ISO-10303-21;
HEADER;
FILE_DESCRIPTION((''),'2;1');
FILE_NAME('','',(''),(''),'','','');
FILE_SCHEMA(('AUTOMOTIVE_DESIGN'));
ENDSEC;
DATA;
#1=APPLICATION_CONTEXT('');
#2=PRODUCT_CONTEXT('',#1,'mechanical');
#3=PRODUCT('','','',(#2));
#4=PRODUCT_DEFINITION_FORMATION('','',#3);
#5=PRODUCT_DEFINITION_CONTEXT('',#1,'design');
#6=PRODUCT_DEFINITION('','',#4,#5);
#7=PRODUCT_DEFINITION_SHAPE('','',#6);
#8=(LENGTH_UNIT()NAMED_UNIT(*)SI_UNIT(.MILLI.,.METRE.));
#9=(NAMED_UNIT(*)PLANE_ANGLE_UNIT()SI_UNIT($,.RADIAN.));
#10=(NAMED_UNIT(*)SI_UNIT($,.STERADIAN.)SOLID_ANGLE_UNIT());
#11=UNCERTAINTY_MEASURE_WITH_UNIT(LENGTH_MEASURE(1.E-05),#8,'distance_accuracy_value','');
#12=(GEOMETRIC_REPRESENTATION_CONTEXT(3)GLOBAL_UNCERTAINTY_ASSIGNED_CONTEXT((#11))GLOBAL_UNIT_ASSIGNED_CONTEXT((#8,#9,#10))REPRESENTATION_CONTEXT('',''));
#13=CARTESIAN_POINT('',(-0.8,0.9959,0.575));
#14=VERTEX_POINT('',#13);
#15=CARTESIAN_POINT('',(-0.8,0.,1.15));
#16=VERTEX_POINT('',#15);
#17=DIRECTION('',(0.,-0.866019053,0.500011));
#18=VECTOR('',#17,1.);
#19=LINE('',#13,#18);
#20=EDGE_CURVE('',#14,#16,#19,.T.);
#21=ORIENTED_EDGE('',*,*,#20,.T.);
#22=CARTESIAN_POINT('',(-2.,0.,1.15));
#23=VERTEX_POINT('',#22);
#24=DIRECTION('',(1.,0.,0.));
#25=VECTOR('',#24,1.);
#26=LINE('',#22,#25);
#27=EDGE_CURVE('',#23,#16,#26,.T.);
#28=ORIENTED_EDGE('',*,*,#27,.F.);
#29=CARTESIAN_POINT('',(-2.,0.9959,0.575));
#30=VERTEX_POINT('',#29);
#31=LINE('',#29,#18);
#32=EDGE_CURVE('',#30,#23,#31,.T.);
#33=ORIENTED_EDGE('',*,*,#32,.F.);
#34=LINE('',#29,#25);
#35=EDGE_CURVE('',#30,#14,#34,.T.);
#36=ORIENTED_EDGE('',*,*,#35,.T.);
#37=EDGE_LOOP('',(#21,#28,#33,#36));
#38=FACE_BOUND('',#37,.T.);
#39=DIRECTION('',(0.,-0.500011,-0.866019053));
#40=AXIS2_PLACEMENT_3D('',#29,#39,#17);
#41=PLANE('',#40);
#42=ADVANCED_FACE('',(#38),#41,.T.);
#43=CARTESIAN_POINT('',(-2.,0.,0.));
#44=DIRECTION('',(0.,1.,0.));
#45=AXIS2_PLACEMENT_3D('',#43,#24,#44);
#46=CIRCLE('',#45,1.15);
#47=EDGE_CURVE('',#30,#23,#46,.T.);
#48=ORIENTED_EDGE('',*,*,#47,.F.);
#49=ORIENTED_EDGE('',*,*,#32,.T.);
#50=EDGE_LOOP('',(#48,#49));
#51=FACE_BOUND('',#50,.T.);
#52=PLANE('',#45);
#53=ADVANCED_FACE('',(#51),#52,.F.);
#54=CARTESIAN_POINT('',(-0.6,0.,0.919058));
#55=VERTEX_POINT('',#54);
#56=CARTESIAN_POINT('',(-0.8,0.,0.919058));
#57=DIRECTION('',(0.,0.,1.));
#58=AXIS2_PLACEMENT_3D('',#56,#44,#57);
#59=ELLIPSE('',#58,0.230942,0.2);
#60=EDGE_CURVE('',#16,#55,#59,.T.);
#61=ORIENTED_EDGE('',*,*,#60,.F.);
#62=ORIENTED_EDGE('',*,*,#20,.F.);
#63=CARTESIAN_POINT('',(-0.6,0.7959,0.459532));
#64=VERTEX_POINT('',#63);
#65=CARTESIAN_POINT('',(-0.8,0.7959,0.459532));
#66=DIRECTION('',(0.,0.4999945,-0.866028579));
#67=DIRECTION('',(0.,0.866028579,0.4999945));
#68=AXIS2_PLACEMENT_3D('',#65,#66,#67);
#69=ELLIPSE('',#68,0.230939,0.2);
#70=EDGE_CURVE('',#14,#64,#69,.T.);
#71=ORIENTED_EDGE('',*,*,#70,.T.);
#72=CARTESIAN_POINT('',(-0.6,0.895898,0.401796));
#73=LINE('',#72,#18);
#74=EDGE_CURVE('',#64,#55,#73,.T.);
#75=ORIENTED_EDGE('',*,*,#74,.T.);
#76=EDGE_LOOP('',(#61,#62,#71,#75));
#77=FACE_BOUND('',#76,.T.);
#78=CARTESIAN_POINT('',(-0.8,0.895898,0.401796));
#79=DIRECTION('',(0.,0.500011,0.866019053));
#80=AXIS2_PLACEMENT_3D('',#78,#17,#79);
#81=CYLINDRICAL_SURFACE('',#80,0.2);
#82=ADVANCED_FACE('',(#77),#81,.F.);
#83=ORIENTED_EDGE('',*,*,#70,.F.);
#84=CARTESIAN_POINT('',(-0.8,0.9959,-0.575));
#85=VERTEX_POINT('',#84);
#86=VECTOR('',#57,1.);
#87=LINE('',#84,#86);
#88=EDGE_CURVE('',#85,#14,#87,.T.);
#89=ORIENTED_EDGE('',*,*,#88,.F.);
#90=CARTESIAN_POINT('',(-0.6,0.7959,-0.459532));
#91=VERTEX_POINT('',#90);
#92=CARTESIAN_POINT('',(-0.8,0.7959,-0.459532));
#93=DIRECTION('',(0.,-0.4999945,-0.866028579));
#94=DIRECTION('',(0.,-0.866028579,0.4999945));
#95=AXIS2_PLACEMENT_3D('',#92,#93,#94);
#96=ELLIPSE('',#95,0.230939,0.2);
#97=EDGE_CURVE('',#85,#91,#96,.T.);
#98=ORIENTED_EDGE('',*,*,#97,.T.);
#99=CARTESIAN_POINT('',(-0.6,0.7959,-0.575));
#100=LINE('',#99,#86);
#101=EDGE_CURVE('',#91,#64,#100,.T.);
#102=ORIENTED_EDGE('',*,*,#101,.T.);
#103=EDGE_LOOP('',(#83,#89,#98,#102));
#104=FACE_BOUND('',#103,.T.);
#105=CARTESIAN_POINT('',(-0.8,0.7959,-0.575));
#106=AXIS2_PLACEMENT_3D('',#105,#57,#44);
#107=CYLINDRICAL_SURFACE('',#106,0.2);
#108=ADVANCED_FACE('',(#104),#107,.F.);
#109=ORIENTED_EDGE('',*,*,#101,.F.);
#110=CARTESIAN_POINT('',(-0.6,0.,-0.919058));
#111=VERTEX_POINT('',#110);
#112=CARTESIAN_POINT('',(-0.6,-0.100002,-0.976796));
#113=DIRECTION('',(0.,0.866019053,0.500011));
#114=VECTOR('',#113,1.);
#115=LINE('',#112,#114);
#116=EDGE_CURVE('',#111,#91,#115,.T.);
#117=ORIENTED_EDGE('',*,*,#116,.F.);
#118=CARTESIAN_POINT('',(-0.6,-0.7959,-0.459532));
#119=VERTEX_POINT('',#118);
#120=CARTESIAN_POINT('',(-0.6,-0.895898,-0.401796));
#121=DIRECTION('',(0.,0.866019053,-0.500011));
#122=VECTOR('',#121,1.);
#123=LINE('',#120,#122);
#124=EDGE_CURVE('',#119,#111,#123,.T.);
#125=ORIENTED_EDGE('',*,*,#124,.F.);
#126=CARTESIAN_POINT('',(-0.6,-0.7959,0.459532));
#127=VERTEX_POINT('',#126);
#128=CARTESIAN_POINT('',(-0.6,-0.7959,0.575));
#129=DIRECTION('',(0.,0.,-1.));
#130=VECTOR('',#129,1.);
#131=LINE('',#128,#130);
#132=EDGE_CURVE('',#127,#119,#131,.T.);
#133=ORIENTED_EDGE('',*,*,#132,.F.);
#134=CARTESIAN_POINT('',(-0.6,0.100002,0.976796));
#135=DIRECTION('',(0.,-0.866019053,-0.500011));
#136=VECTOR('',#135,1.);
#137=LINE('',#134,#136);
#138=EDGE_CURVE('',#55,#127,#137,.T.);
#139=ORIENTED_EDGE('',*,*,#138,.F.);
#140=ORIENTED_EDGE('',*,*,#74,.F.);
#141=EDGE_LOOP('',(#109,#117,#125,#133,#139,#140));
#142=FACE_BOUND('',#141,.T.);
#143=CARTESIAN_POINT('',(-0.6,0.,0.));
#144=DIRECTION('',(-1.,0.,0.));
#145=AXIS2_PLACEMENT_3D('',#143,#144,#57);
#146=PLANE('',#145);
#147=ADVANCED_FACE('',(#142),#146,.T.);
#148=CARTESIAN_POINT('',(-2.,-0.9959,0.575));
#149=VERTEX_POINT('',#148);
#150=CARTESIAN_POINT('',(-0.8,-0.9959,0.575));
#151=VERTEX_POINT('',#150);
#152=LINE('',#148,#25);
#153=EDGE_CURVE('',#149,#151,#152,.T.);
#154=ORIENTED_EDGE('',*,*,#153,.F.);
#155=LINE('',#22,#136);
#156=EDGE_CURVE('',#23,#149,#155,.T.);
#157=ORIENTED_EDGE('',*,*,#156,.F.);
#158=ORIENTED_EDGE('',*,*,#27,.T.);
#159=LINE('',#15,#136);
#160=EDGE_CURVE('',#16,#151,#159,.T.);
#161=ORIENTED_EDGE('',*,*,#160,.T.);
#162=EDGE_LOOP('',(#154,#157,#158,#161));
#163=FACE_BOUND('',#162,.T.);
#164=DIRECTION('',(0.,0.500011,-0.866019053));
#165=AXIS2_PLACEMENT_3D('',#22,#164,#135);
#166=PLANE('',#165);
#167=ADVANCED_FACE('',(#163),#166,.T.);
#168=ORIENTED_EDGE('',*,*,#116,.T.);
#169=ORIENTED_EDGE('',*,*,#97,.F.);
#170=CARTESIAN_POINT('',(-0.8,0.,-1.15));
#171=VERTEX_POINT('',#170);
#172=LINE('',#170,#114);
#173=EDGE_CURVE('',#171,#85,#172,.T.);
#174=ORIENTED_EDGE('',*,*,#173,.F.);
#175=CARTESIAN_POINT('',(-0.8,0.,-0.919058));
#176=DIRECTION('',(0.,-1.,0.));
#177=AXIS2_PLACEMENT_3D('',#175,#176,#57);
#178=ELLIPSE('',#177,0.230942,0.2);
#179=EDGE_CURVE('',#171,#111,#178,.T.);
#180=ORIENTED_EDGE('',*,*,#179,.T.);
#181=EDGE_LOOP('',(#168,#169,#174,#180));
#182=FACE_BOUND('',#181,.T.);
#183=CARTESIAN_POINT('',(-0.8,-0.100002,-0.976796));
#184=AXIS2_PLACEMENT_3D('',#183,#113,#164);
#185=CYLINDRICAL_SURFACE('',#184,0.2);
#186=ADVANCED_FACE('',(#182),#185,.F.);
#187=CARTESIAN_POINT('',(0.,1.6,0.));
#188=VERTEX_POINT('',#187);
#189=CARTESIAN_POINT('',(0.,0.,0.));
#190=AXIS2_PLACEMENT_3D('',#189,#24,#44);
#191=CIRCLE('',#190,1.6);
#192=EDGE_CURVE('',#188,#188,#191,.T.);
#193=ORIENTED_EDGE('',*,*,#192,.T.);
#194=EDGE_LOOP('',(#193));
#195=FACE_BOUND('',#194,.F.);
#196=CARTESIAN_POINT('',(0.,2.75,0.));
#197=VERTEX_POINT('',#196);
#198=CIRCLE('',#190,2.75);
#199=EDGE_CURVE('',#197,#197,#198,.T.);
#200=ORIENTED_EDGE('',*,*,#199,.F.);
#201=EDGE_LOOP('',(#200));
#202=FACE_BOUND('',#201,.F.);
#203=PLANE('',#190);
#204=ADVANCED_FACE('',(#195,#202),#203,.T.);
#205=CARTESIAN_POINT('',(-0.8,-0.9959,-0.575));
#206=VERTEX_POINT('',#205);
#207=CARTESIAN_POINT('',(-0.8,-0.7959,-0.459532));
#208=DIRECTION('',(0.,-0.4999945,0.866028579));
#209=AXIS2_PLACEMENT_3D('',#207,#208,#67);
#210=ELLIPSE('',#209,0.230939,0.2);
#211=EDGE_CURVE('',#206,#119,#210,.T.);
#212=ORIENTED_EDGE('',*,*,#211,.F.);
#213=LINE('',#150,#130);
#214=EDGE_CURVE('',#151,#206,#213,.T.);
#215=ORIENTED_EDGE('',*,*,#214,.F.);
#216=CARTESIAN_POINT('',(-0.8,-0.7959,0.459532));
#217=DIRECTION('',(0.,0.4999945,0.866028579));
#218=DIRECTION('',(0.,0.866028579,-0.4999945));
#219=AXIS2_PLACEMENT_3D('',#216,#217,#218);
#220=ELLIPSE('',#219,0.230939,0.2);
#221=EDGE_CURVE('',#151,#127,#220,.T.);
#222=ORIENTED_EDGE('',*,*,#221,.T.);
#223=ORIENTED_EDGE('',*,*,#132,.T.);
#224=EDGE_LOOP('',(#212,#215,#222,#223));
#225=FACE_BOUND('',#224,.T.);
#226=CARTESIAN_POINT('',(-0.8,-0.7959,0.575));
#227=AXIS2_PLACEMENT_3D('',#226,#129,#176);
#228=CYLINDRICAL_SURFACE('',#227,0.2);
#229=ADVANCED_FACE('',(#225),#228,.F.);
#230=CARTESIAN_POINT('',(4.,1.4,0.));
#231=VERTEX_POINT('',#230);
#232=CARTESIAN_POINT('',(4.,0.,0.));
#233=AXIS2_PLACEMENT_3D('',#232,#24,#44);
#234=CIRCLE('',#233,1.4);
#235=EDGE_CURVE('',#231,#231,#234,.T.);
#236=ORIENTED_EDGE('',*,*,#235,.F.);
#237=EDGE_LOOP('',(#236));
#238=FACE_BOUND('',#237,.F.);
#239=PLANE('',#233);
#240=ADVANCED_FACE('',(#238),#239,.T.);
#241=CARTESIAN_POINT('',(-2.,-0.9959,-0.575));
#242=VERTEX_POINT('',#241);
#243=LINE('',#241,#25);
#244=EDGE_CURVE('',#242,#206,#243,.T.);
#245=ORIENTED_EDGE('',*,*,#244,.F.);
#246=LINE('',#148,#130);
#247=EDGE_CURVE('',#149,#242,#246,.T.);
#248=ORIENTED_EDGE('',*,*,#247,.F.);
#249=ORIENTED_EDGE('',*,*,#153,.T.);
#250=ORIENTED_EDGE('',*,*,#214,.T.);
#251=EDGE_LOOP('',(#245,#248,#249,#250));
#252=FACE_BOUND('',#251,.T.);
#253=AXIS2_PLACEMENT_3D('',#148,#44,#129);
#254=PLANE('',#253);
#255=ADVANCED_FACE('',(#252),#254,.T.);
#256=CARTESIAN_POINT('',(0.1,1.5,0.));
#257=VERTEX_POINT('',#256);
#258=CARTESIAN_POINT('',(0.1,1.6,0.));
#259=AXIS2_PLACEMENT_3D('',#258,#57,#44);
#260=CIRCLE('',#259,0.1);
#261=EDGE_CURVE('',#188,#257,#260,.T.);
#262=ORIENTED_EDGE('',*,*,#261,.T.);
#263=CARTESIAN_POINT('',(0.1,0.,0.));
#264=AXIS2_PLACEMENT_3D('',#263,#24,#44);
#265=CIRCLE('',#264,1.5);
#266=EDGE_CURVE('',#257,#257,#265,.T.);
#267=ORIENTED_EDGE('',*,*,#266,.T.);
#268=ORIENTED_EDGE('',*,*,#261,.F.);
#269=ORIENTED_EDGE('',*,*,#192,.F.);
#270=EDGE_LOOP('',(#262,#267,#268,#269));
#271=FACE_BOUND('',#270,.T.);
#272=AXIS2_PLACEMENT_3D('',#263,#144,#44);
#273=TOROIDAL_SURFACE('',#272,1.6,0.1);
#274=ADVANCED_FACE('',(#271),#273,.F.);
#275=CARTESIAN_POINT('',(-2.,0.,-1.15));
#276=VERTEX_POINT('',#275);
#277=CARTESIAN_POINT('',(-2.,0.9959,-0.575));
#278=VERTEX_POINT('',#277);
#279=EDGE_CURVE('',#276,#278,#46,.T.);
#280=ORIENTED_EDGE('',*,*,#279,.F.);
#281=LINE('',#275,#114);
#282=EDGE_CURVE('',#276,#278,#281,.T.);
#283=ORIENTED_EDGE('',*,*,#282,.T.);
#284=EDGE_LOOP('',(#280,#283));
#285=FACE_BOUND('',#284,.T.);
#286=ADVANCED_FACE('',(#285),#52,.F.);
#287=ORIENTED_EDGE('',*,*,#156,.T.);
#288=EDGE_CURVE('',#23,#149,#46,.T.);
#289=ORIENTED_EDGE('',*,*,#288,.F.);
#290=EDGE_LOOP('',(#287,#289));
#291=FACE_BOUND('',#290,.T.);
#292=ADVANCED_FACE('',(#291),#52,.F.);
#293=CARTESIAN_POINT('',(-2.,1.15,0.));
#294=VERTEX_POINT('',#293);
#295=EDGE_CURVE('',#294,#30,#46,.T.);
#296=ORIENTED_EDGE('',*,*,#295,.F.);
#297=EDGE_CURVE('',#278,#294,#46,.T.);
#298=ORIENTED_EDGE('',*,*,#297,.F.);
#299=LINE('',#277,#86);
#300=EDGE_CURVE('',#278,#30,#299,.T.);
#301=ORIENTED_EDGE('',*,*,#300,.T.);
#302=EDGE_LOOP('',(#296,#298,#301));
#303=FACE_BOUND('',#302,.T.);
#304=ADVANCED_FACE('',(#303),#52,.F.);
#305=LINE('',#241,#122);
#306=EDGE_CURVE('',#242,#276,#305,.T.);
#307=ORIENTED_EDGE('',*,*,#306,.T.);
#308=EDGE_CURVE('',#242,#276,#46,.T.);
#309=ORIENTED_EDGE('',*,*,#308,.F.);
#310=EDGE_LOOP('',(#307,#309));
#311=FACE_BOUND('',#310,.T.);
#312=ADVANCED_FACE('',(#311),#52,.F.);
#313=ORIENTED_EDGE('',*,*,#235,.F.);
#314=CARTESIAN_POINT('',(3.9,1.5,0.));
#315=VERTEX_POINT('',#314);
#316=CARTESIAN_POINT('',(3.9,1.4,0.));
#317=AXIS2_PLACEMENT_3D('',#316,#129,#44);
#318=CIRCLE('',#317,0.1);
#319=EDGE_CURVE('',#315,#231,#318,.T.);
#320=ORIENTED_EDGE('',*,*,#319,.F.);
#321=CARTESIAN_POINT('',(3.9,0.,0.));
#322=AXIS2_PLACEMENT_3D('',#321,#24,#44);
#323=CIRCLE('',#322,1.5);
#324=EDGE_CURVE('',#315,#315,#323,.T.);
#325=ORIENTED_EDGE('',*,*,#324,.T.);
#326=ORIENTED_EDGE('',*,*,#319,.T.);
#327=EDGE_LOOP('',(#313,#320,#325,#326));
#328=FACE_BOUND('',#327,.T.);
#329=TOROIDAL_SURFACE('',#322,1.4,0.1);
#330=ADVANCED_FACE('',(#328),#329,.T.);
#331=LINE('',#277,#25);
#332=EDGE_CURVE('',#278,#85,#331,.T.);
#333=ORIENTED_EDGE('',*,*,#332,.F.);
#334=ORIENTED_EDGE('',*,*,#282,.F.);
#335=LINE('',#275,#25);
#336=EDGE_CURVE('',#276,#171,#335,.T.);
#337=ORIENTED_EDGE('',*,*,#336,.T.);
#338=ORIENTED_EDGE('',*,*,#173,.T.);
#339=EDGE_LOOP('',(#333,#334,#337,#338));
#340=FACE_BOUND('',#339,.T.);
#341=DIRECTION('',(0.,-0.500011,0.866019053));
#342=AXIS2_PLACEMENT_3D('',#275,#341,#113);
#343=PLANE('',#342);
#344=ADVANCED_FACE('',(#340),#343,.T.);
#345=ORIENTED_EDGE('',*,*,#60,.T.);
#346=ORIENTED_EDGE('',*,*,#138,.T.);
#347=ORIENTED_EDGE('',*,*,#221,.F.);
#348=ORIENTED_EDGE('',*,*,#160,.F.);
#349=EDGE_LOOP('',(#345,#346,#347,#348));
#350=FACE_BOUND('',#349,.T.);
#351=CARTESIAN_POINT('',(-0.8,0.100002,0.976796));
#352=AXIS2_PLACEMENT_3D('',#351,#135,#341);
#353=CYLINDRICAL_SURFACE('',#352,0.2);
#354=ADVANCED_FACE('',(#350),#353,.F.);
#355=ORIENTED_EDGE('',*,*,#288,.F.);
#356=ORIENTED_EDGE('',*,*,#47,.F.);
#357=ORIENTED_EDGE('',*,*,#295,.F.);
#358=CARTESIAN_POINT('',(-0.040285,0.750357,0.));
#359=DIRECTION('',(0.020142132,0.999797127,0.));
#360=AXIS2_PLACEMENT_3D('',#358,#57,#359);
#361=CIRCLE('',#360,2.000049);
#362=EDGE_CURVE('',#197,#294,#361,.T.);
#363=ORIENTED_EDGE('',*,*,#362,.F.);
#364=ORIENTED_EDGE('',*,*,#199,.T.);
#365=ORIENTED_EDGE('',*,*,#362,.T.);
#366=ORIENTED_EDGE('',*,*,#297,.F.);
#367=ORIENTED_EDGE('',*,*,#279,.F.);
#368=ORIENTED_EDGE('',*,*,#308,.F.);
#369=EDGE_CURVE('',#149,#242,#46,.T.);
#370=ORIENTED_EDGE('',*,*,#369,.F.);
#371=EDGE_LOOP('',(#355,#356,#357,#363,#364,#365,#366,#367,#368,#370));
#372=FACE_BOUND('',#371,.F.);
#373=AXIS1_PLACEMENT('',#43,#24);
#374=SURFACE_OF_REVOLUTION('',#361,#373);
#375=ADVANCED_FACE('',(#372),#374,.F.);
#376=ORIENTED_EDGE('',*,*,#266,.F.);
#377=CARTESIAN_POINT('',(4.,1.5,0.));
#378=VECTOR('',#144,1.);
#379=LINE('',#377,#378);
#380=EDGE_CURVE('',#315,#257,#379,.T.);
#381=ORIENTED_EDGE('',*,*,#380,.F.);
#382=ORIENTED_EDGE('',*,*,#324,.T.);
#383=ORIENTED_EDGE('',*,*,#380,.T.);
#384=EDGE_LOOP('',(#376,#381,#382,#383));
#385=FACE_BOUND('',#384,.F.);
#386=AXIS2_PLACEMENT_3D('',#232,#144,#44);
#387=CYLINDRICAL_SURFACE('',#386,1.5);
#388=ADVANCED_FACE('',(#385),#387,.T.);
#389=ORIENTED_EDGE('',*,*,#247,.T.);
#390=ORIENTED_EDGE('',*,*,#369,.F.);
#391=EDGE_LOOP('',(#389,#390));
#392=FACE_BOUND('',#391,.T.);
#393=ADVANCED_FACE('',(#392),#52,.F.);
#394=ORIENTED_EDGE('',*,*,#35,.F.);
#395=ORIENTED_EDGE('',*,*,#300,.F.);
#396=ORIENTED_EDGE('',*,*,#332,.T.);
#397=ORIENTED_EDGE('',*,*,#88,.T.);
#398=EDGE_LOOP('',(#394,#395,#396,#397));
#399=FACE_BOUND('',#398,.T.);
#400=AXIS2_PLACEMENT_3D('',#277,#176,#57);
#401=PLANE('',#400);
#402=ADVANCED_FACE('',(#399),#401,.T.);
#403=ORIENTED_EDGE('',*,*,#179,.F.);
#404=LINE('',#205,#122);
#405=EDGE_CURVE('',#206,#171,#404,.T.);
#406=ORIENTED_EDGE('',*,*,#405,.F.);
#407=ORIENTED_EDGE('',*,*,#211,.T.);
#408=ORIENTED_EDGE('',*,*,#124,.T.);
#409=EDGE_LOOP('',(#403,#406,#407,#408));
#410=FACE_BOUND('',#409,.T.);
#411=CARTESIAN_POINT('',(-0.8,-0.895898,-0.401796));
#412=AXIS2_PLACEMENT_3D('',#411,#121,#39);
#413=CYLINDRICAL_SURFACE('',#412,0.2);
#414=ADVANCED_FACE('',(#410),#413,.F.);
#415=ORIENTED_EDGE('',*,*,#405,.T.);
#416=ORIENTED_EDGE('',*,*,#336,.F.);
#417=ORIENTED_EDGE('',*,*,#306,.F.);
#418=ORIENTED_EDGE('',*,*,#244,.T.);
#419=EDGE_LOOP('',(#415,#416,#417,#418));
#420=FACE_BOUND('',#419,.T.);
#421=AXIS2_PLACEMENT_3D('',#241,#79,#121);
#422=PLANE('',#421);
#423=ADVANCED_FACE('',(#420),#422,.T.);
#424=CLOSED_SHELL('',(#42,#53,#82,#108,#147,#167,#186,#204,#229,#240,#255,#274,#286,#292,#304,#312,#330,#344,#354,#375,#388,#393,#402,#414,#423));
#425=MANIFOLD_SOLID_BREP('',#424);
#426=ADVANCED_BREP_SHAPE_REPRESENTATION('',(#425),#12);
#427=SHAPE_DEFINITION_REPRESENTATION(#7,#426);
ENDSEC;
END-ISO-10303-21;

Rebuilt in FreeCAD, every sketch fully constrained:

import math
import FreeCAD as App
import Part
import Sketcher

V = App.Vector
Q = App.Units.Quantity


def edges_at(feature, points):
    """Names of the edges that pass closest to the given points."""
    edges = feature.Shape.Edges
    near = lambda p: min(range(len(edges)), key=lambda i: edges[i].distToShape(Part.Vertex(*p))[0])
    return sorted({f"Edge{near(p) + 1}" for p in points})

doc = App.newDocument("Part")
params = doc.addObject("Spreadsheet::Sheet", "Params")
for row, (alias, value) in enumerate([
    ("sketch1_radius", "2 mm"),
    ("sketch1_width", "4 mm"),
    ("sketch1_height", "1.5 mm"),
    ("sketch1_height2", "1.15 mm"),
    ("revolution_angle", "360 deg"),
    ("sketch2_height", "1.15 mm"),
    ("sketch2_length", "1.15 mm"),
    ("pocket1_length", "1.4 mm"),
    ("fillet_radius", "0.2 mm"),
    ("fillet2_radius", "0.1 mm"),
    ("fillet3_radius", "0.1 mm"),
], start=1):
    params.set(f"A{row}", alias)
    params.set(f"B{row}", "=" + value)
    params.setAlias(f"B{row}", alias)

body = doc.addObject("PartDesign::Body", "Body")

# Sketch on XY plane
sketch1 = doc.addObject("Sketcher::SketchObject", "Sketch")
body.addObject(sketch1)
sketch1.AttachmentSupport = (doc.XY_Plane, [""])
sketch1.MapMode = "FlatFace"
sketch1.addGeometry([
    Part.LineSegment(V(4, 1.5, 0), V(0, 1.5, 0)),  # 0
    Part.LineSegment(V(0, 1.5, 0), V(0, 2.8, 0)),  # 1
    Part.ArcOfCircle(Part.Circle(V(0, 0.8, 0), V(0, 0, 1), 2), math.radians(89), math.radians(168)),  # 2
    Part.LineSegment(V(-2, 1.1, 0), V(-2, 0, 0)),  # 3
    Part.LineSegment(V(-2, 0, 0), V(4, 0, 0)),  # 4
    Part.LineSegment(V(4, 0, 0), V(4, 1.5, 0)),  # 5
], False)
sketch1.addConstraint([
    Sketcher.Constraint("Coincident", 0, 2, 1, 1),
    Sketcher.Constraint("Coincident", 1, 2, 2, 1),
    Sketcher.Constraint("Coincident", 2, 2, 3, 1),
    Sketcher.Constraint("Coincident", 3, 2, 4, 1),
    Sketcher.Constraint("Coincident", 4, 2, 5, 1),
    Sketcher.Constraint("Coincident", 5, 2, 0, 1),
    Sketcher.Constraint("Horizontal", 0),
    Sketcher.Constraint("Vertical", 1),
    Sketcher.Constraint("Vertical", 3),
    Sketcher.Constraint("Horizontal", 4),
    Sketcher.Constraint("Vertical", 5),
    Sketcher.Constraint("PointOnObject", 0, 2, -2),
    Sketcher.Constraint("PointOnObject", 3, 2, -1),
    Sketcher.Constraint("Radius", 2, Q("2 mm")),
    Sketcher.Constraint("DistanceX", 0, 2, 0, 1, Q("4 mm")),
    Sketcher.Constraint("DistanceY", 5, 1, 5, 2, Q("1.5 mm")),
    Sketcher.Constraint("DistanceX", 2, 2, -1, 1, Q("2 mm")),
    Sketcher.Constraint("DistanceY", 3, 2, 3, 1, Q("1.15 mm")),
    Sketcher.Constraint("DistanceY", -1, 1, 1, 2, Q("2.75 mm")),
])
sketch1.setExpression("Constraints[13]", "Params.sketch1_radius")
sketch1.setExpression("Constraints[14]", "Params.sketch1_width")
sketch1.setExpression("Constraints[15]", "Params.sketch1_height")
sketch1.setExpression("Constraints[17]", "Params.sketch1_height2")
revolution = doc.addObject("PartDesign::Revolution", "Revolution")
body.addObject(revolution)
revolution.Profile = sketch1
revolution.ReferenceAxis = (sketch1, ["H_Axis"])
revolution.setExpression("Angle", "Params.revolution_angle")

# Sketch on YZ plane
sketch2 = doc.addObject("Sketcher::SketchObject", "Sketch001")
body.addObject(sketch2)
sketch2.AttachmentSupport = (doc.YZ_Plane, [""])
sketch2.MapMode = "FlatFace"
sketch2.AttachmentOffset = App.Placement(V(0, 0, -2), App.Rotation())
sketch2.addGeometry([
    Part.LineSegment(V(-1, 0.6, 0), V(0, 1.1, 0)),  # 0
    Part.LineSegment(V(0, 1.1, 0), V(1, 0.6, 0)),  # 1
    Part.LineSegment(V(1, 0.6, 0), V(1, -0.6, 0)),  # 2
    Part.LineSegment(V(1, -0.6, 0), V(0, -1.1, 0)),  # 3
    Part.LineSegment(V(0, -1.1, 0), V(-1, -0.6, 0)),  # 4
    Part.LineSegment(V(-1, -0.6, 0), V(-1, 0.6, 0)),  # 5
], False)
sketch2.addConstraint([
    Sketcher.Constraint("Coincident", 0, 2, 1, 1),
    Sketcher.Constraint("Coincident", 1, 2, 2, 1),
    Sketcher.Constraint("Coincident", 2, 2, 3, 1),
    Sketcher.Constraint("Coincident", 3, 2, 4, 1),
    Sketcher.Constraint("Coincident", 4, 2, 5, 1),
    Sketcher.Constraint("Coincident", 5, 2, 0, 1),
    Sketcher.Constraint("Vertical", 2),
    Sketcher.Constraint("Vertical", 5),
    Sketcher.Constraint("Symmetric", 0, 2, 3, 2, -1, 1),
    Sketcher.Constraint("Symmetric", 1, 2, 4, 2, -1, 1),
    Sketcher.Constraint("PointOnObject", 0, 2, -2),
    Sketcher.Constraint("Parallel", 0, 3),
    Sketcher.Constraint("Horizontal", 2, 2, 4, 2),
    Sketcher.Constraint("DistanceY", 2, 2, 2, 1, Q("1.15 mm")),
    Sketcher.Constraint("Distance", 0, Q("1.15 mm")),
    Sketcher.Constraint("DistanceY", -1, 1, 0, 2, Q("1.15 mm")),
])
sketch2.setExpression("Constraints[13]", "Params.sketch2_height")
sketch2.setExpression("Constraints[14]", "Params.sketch2_length")
pocket1 = doc.addObject("PartDesign::Pocket", "Pocket")
body.addObject(pocket1)
pocket1.Profile = sketch2
pocket1.setExpression("Length", "Params.pocket1_length")
pocket1.Reversed = True
doc.recompute()

fillet = doc.addObject("PartDesign::Fillet", "Fillet")
body.addObject(fillet)
fillet.Base = (pocket1, edges_at(pocket1, [
    (-0.6, 0.996, 0),
    (-0.6, 0.498, 0.863),
    (-0.6, 0.498, -0.863),
    (-0.6, -0.498, -0.863),
    (-0.6, -0.996, 0),
    (-0.6, -0.498, 0.863),
]))
fillet.setExpression("Radius", "Params.fillet_radius")
doc.recompute()

fillet2 = doc.addObject("PartDesign::Fillet", "Fillet001")
body.addObject(fillet2)
fillet2.Base = (fillet, edges_at(fillet, [(0, -1.5, 0)]))
fillet2.setExpression("Radius", "Params.fillet2_radius")
doc.recompute()

fillet3 = doc.addObject("PartDesign::Fillet", "Fillet002")
body.addObject(fillet3)
fillet3.Base = (fillet2, edges_at(fillet2, [(4, -1.5, 0)]))
fillet3.setExpression("Radius", "Params.fillet3_radius")

doc.recompute()
